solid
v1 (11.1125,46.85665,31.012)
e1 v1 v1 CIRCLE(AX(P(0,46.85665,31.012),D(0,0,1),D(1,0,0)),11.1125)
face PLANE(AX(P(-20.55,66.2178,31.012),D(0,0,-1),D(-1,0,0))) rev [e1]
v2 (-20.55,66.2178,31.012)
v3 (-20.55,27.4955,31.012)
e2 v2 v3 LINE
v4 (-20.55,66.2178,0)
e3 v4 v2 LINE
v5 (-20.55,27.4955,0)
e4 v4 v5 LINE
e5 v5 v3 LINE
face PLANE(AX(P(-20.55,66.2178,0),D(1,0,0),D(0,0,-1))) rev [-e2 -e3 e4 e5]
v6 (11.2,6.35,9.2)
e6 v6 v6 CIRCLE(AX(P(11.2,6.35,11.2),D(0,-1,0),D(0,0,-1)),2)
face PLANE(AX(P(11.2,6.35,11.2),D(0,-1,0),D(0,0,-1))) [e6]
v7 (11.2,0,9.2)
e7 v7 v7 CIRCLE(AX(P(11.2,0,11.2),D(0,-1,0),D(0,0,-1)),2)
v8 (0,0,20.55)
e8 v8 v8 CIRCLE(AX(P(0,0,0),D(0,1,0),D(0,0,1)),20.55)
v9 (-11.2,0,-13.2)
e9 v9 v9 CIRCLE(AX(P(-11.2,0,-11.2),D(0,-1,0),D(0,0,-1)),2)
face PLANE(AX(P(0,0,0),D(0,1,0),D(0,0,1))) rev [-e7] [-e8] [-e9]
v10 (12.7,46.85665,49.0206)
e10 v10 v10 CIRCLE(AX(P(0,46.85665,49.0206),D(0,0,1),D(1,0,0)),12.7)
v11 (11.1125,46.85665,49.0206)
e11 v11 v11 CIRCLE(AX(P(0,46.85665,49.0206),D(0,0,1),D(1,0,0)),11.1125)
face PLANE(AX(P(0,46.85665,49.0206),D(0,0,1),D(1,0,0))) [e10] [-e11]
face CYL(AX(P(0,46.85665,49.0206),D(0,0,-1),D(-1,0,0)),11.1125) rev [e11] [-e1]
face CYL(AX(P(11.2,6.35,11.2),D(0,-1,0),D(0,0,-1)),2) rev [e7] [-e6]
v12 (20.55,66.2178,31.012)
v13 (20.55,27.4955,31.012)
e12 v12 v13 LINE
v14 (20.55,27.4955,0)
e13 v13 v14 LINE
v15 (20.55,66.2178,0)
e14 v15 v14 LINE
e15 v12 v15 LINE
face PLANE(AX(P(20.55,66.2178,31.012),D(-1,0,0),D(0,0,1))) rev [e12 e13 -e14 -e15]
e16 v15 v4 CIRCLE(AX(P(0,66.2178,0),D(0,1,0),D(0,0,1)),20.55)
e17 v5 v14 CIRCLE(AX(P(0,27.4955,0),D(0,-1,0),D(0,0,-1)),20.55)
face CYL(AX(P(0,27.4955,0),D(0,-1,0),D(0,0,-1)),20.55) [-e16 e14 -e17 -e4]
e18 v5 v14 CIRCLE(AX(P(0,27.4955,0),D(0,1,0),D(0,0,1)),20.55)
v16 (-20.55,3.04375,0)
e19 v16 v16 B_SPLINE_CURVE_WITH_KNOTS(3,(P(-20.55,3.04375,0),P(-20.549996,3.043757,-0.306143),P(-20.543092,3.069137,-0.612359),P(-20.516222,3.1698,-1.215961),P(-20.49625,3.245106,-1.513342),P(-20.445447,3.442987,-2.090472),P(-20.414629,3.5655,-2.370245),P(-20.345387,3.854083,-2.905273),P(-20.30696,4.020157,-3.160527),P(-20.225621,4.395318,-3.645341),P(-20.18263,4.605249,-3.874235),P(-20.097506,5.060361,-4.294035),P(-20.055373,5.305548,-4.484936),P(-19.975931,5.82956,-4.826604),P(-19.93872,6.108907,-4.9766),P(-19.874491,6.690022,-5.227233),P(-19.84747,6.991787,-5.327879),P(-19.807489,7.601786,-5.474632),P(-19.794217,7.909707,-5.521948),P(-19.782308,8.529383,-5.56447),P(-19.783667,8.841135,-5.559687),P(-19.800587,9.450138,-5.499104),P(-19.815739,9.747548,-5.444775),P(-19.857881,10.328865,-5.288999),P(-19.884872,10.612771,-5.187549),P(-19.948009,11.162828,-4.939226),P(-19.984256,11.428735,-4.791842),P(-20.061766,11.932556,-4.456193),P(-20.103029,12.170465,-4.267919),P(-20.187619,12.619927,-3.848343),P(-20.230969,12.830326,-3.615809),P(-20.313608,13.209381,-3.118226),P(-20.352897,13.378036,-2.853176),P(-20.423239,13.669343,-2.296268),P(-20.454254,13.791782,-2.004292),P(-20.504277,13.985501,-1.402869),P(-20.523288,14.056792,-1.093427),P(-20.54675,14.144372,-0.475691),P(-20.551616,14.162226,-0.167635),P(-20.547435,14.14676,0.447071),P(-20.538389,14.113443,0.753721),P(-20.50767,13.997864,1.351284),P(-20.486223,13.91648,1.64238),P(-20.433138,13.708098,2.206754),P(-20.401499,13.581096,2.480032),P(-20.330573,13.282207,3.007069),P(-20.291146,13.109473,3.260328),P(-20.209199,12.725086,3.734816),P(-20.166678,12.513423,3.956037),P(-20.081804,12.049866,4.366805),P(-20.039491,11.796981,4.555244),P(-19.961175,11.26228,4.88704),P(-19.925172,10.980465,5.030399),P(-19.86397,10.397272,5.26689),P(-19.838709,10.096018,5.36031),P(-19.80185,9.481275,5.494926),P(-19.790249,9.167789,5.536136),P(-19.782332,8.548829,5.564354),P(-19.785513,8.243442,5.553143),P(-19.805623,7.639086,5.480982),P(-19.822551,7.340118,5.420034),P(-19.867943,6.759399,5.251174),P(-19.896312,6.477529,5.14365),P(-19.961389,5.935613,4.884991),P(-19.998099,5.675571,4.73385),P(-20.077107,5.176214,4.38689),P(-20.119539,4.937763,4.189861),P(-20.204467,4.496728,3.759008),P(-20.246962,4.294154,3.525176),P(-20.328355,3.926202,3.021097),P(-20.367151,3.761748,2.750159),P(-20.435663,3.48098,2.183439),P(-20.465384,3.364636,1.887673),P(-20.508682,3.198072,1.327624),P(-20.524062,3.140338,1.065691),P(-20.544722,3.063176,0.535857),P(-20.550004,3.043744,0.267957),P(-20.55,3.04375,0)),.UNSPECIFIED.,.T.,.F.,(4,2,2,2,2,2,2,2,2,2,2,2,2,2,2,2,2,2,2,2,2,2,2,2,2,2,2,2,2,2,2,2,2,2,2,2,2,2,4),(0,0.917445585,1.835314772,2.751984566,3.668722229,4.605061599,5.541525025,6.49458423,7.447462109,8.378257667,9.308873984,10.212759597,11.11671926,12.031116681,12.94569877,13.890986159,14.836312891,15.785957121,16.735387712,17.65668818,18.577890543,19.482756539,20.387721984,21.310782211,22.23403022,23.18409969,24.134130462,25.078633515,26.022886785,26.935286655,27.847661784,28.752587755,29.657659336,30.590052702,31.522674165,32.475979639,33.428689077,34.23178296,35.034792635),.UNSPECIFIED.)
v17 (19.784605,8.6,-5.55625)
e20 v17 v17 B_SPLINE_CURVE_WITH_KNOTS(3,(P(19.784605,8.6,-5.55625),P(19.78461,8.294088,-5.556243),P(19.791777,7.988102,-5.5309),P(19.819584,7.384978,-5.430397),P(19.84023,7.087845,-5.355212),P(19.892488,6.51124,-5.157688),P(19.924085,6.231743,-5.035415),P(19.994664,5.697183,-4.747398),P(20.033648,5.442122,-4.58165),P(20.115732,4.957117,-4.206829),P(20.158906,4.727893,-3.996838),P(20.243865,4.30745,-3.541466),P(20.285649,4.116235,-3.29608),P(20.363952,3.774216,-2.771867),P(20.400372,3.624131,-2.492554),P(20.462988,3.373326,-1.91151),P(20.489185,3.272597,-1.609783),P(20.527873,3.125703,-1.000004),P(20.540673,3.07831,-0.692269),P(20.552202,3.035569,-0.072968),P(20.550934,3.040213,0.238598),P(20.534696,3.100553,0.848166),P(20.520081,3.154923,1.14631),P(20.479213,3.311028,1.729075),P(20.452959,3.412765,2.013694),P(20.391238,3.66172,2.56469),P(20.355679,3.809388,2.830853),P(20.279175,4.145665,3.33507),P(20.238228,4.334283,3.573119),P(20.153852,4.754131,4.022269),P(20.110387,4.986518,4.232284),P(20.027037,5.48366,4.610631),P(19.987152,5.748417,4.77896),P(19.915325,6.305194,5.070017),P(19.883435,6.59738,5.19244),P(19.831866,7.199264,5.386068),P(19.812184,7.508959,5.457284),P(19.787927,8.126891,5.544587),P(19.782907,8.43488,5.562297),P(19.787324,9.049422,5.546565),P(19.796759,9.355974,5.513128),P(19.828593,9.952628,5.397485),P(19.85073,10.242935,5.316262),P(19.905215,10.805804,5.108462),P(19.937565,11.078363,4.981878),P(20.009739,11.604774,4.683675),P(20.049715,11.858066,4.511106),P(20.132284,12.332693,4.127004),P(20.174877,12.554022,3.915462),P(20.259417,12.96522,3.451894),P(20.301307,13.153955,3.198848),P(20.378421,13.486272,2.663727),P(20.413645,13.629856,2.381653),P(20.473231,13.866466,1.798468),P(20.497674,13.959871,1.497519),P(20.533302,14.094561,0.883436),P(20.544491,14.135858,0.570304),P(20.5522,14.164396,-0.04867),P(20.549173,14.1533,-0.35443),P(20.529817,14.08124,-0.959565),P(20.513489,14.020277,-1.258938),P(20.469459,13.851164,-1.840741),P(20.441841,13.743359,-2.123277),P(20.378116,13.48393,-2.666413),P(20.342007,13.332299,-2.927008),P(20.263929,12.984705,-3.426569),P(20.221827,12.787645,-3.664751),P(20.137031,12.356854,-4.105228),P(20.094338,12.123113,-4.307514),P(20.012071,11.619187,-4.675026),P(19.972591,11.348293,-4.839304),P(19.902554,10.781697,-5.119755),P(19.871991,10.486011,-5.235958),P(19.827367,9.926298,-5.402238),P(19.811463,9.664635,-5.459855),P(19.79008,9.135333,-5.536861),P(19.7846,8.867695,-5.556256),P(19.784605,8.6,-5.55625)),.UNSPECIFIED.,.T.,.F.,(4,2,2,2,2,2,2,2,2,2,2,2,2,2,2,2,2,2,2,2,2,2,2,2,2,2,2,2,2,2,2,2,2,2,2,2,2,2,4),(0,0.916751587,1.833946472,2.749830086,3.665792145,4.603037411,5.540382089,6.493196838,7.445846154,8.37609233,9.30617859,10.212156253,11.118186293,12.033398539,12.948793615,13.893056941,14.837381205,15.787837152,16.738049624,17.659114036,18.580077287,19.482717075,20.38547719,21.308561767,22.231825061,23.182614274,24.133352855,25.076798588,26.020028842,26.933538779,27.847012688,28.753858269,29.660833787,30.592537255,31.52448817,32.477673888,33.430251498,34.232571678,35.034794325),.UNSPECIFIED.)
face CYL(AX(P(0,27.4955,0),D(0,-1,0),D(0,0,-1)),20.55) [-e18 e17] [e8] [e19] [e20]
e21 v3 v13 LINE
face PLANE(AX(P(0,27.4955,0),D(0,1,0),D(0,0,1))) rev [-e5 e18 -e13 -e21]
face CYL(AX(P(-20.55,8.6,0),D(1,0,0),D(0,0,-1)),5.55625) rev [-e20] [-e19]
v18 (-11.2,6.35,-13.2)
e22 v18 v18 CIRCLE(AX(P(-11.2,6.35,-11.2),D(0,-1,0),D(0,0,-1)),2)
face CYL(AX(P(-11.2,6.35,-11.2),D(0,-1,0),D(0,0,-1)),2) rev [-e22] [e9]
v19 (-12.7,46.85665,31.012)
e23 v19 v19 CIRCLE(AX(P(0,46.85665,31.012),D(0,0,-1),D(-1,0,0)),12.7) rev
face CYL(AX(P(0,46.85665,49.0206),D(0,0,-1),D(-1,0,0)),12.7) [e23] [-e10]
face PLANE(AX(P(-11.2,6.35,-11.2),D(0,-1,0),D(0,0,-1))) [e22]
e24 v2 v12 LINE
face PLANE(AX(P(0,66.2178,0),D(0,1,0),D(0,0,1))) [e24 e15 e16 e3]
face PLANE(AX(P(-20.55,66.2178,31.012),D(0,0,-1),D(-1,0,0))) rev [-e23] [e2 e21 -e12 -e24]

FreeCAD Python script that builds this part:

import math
import FreeCAD as App
import Part
import Sketcher
Q = App.Units.Quantity

doc = App.newDocument("Part")
params = doc.addObject("Spreadsheet::Sheet", "Params")
for row, (alias, value) in enumerate([
    ("pad1_length", "1.0825 in"),
    ("pad2_length", "1.5245 in"),
    ("pocket1_length", "0.25 in"),
    ("sketch4_diameter", "0.4375 in"),
    ("sketch5_diameter", "1 in"),
    ("sketch5_diameter2", "0.875 in"),
    ("pad3_length", "0.709 in"),
], start=1):
    params.set(f"A{row}", alias)
    params.set(f"B{row}", "=" + value)
    params.setAlias(f"B{row}", alias)

body = doc.addObject("PartDesign::Body", "Body")

# Sketch on XZ plane
sketch1 = body.newObject("Sketcher::SketchObject", "Sketch")
sketch1.AttachmentSupport = (doc.getObject("XZ_Plane"), [""])
sketch1.MapMode = "FlatFace"
sketch1.addGeometry(Part.Circle(App.Vector(0, 0, 0), App.Vector(0, 0, 1), 21), False)
sketch1.addConstraint(Sketcher.Constraint("Coincident", 0, 3, -1, 1))
sketch1.addConstraint(Sketcher.Constraint("Diameter", 0, 41.1))
pad1 = body.newObject("PartDesign::Pad", "Pad")
pad1.Profile = sketch1
pad1.setExpression("Length", "Params.pad1_length")
pad1.Reversed = True

# Sketch on XZ plane
sketch2 = body.newObject("Sketcher::SketchObject", "Sketch001")
sketch2.AttachmentSupport = (doc.getObject("XZ_Plane"), [""])
sketch2.MapMode = "FlatFace"
sketch2.AttachmentOffset = App.Placement(App.Vector(0, 0, -1.0825 * 25.4), App.Rotation())
sketch2.addGeometry(Part.LineSegment(App.Vector(-21, 0, 0), App.Vector(-21, 31, 0)), False)
sketch2.addGeometry(Part.LineSegment(App.Vector(-21, 31, 0), App.Vector(21, 31, 0)), False)
sketch2.addGeometry(Part.LineSegment(App.Vector(21, 31, 0), App.Vector(21, 0, 0)), False)
sketch2.addGeometry(Part.ArcOfCircle(Part.Circle(App.Vector(0, 0, 0), App.Vector(0, 0, 1), 21), math.radians(180), math.radians(360)), False)
sketch2.addConstraint(Sketcher.Constraint("Coincident", 0, 2, 1, 1))
sketch2.addConstraint(Sketcher.Constraint("Coincident", 1, 2, 2, 1))
sketch2.addConstraint(Sketcher.Constraint("Tangent", 2, 2, 3, 2))
sketch2.addConstraint(Sketcher.Constraint("Tangent", 3, 1, 0, 1))
sketch2.addConstraint(Sketcher.Constraint("Vertical", 0))
sketch2.addConstraint(Sketcher.Constraint("Horizontal", 1))
sketch2.addConstraint(Sketcher.Constraint("Vertical", 2))
sketch2.addConstraint(Sketcher.Constraint("Coincident", 3, 3, -1, 1))
sketch2.addConstraint(Sketcher.Constraint("Radius", 3, 20.55))
sketch2.addConstraint(Sketcher.Constraint("DistanceY", 0, 1, 0, 2, 31.012))
pad2 = body.newObject("PartDesign::Pad", "Pad001")
pad2.Profile = sketch2
pad2.setExpression("Length", "Params.pad2_length")
pad2.Reversed = True

# Sketch on XZ plane
sketch3 = body.newObject("Sketcher::SketchObject", "Sketch002")
sketch3.AttachmentSupport = (doc.getObject("XZ_Plane"), [""])
sketch3.MapMode = "FlatFace"
sketch3.addGeometry(Part.Circle(App.Vector(11.2, 11.2, 0), App.Vector(0, 0, 1), 2), False)
sketch3.addGeometry(Part.Circle(App.Vector(-11.2, -11.2, 0), App.Vector(0, 0, 1), 2), False)
sketch3.addConstraint(Sketcher.Constraint("Equal", 0, 1))
sketch3.addConstraint(Sketcher.Constraint("Symmetric", 0, 3, 1, 3, -1, 1))
sketch3.addConstraint(Sketcher.Constraint("Diameter", 0, 4.0))
sketch3.addConstraint(Sketcher.Constraint("DistanceX", -1, 1, 0, 3, 11.2))
sketch3.addConstraint(Sketcher.Constraint("DistanceY", -1, 1, 0, 3, 11.2))
pocket1 = body.newObject("PartDesign::Pocket", "Pocket")
pocket1.Profile = sketch3
pocket1.setExpression("Length", "Params.pocket1_length")

# Sketch on YZ plane
sketch4 = body.newObject("Sketcher::SketchObject", "Sketch003")
sketch4.AttachmentSupport = (doc.getObject("YZ_Plane"), [""])
sketch4.MapMode = "FlatFace"
sketch4.addGeometry(Part.Circle(App.Vector(9, 0, 0), App.Vector(0, 0, 1), 6), False)
sketch4.addConstraint(Sketcher.Constraint("PointOnObject", 0, 3, -1))
sketch4.addConstraint(Sketcher.Constraint("Diameter", 0, Q("0.4375 in")))
sketch4.addConstraint(Sketcher.Constraint("DistanceX", -1, 1, 0, 3, 8.6))
sketch4.setExpression("Constraints[1]", "Params.sketch4_diameter")
pocket2 = body.newObject("PartDesign::Pocket", "Pocket001")
pocket2.Profile = sketch4
pocket2.Type = "ThroughAll"
pocket2.Midplane = True

# Sketch on XY plane
sketch5 = body.newObject("Sketcher::SketchObject", "Sketch004")
sketch5.AttachmentSupport = (doc.getObject("XY_Plane"), [""])
sketch5.MapMode = "FlatFace"
sketch5.AttachmentOffset = App.Placement(App.Vector(0, 0, 31.012), App.Rotation())
sketch5.addGeometry(Part.Circle(App.Vector(0, 47, 0), App.Vector(0, 0, 1), 13), False)
sketch5.addGeometry(Part.Circle(App.Vector(0, 47, 0), App.Vector(0, 0, 1), 11), False)
sketch5.addConstraint(Sketcher.Constraint("Coincident", 1, 3, 0, 3))
sketch5.addConstraint(Sketcher.Constraint("PointOnObject", 0, 3, -2))
sketch5.addConstraint(Sketcher.Constraint("Diameter", 0, Q("1 in")))
sketch5.addConstraint(Sketcher.Constraint("Diameter", 1, Q("0.875 in")))
sketch5.addConstraint(Sketcher.Constraint("DistanceY", -1, 1, 0, 3, 46.85665))
sketch5.setExpression("Constraints[2]", "Params.sketch5_diameter")
sketch5.setExpression("Constraints[3]", "Params.sketch5_diameter2")
pad3 = body.newObject("PartDesign::Pad", "Pad002")
pad3.Profile = sketch5
pad3.setExpression("Length", "Params.pad3_length")

doc.recompute()
